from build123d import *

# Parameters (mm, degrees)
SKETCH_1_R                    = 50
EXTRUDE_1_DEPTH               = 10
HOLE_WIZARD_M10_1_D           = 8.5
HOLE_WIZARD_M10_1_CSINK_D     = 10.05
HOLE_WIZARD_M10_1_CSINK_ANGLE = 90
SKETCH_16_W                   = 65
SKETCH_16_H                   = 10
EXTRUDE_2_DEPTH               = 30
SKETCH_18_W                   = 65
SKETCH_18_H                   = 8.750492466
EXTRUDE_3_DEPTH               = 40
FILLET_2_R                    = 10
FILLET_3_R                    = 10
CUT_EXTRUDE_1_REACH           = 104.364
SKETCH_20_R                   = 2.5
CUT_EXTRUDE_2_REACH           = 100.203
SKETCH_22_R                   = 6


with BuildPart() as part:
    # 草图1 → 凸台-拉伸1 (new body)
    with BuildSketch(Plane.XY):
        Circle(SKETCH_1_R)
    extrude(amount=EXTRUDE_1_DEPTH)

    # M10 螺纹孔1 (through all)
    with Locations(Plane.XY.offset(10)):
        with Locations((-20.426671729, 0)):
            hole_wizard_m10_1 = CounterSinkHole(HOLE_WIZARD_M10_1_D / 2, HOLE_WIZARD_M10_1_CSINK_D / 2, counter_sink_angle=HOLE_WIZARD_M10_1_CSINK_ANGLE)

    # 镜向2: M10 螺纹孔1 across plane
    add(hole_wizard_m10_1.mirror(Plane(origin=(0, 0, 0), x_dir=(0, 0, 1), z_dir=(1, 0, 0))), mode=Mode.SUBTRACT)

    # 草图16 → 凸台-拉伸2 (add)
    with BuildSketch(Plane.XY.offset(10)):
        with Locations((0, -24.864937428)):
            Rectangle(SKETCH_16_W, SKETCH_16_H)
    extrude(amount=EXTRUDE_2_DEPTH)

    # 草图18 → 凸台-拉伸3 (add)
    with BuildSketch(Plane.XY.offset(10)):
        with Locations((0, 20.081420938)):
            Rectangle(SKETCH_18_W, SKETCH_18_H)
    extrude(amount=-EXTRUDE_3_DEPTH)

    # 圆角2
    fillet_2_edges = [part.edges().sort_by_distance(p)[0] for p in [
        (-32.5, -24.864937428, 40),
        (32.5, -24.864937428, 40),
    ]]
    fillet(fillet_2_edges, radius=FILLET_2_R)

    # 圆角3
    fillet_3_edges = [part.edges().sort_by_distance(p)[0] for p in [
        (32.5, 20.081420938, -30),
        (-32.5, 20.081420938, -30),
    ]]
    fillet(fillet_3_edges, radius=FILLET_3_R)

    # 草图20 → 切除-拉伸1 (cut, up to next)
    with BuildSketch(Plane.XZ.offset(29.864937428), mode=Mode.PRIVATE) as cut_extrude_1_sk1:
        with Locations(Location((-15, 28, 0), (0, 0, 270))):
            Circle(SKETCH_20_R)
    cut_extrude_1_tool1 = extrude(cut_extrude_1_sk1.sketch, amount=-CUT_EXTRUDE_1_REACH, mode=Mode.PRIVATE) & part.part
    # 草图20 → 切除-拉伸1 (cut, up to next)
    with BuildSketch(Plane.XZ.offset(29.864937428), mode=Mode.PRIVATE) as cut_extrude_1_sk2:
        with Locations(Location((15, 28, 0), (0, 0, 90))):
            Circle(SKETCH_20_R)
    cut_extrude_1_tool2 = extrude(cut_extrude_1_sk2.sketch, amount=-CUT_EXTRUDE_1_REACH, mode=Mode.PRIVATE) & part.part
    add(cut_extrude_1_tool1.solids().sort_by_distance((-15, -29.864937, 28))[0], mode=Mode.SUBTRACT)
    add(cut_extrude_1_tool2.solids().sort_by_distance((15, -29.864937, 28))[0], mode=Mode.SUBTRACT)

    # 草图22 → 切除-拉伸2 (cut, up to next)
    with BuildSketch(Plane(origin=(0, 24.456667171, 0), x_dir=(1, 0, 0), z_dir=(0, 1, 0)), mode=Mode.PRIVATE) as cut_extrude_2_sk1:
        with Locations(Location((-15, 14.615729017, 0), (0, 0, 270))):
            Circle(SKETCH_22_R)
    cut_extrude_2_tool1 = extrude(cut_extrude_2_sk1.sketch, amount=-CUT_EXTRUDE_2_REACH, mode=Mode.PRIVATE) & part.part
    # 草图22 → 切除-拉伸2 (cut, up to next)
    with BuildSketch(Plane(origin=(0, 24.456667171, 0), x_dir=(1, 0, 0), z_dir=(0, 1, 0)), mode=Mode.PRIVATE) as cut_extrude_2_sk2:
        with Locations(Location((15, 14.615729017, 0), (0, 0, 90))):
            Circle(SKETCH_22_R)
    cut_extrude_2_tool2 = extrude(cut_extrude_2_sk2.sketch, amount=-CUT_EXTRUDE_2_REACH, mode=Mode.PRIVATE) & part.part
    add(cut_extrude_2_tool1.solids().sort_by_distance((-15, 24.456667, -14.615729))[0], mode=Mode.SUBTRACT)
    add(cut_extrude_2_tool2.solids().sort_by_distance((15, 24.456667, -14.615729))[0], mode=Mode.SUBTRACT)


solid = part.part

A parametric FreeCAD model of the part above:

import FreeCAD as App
import Part
import Sketcher

V = App.Vector


def edges_at(feature, points):
    """Names of the edges that pass closest to the given points."""
    edges = feature.Shape.Edges
    near = lambda p: min(range(len(edges)), key=lambda i: edges[i].distToShape(Part.Vertex(*p))[0])
    return sorted({f"Edge{near(p) + 1}" for p in points})


def add_polygon(sketch, points):
    """Adds a closed chain of lines whose ends are joined by coincident constraints."""
    first, n = sketch.GeometryCount, len(points)
    for a, b in zip(points, points[1:] + points[:1]):
        sketch.addGeometry(Part.LineSegment(App.Vector(*a, 0), App.Vector(*b, 0)), False)
    for i in range(n):
        sketch.addConstraint(Sketcher.Constraint("Coincident", first + i, 2, first + (i + 1) % n, 1))

doc = App.newDocument("Part")
body = doc.addObject("PartDesign::Body", "Body")

sketch1 = doc.addObject("Sketcher::SketchObject", "Sketch")
body.addObject(sketch1)
sketch1.AttachmentSupport = (doc.XY_Plane, [""])
sketch1.MapMode = "FlatFace"
sketch1.addGeometry(Part.Circle(V(0, 0, 0), V(0, 0, 1), 50), False)
sketch1.addConstraint([
    Sketcher.Constraint("Coincident", 0, 3, -1, 1),
    Sketcher.Constraint("Diameter", 0, 100.0),
])
pad1 = doc.addObject("PartDesign::Pad", "Pad")
body.addObject(pad1)
pad1.Profile = sketch1
pad1.Length = 10

sketch2 = doc.addObject("Sketcher::SketchObject", "Sketch001")
body.addObject(sketch2)
sketch2.AttachmentSupport = (doc.XY_Plane, [""])
sketch2.MapMode = "FlatFace"
sketch2.AttachmentOffset = App.Placement(V(0, 0, 10), App.Rotation())
sketch2.addGeometry(Part.Circle(V(-20.426672, 0, 0), V(0, 0, 1), 4.25), False)
sketch2.addConstraint([
    Sketcher.Constraint("PointOnObject", 0, 3, -1),
    Sketcher.Constraint("Diameter", 0, 8.5),
    Sketcher.Constraint("DistanceX", 0, 3, -1, 1, 20.426672),
])
doc.recompute()
hole = doc.addObject("PartDesign::Hole", "Hole")
body.addObject(hole)
hole.Profile = sketch2
hole.ThreadType = "None"
hole.Diameter = 8.5
hole.DepthType = "ThroughAll"
hole.HoleCutType = "Countersink"
hole.HoleCutDiameter = 10.05
hole.HoleCutCountersinkAngle = 90
doc.recompute()

mirrored = doc.addObject("PartDesign::Mirrored", "Mirrored")
body.addObject(mirrored)
mirrored.Originals = [hole]
mirrored.MirrorPlane = (doc.YZ_Plane, [""])
body.Tip = mirrored

sketch3 = doc.addObject("Sketcher::SketchObject", "Sketch002")
body.addObject(sketch3)
sketch3.AttachmentSupport = (doc.XY_Plane, [""])
sketch3.MapMode = "FlatFace"
sketch3.AttachmentOffset = App.Placement(V(0, 0, 10), App.Rotation())
add_polygon(sketch3, [(-32.5, -19.864937), (-32.5, -29.864937), (32.5, -29.864937), (32.5, -19.864937)])
sketch3.addConstraint([
    Sketcher.Constraint("Vertical", 0),
    Sketcher.Constraint("Horizontal", 1),
    Sketcher.Constraint("Vertical", 2),
    Sketcher.Constraint("Horizontal", 3),
    Sketcher.Constraint("DistanceX", 1, 1, 1, 2, 65.0),
    Sketcher.Constraint("DistanceY", 0, 2, 0, 1, 10.0),
    Sketcher.Constraint("DistanceX", 0, 2, -1, 1, 32.5),
    Sketcher.Constraint("DistanceY", 0, 2, -1, 1, 29.864937),
])
pad2 = doc.addObject("PartDesign::Pad", "Pad001")
body.addObject(pad2)
pad2.Profile = sketch3
pad2.Length = 30

sketch4 = doc.addObject("Sketcher::SketchObject", "Sketch003")
body.addObject(sketch4)
sketch4.AttachmentSupport = (doc.XY_Plane, [""])
sketch4.MapMode = "FlatFace"
sketch4.AttachmentOffset = App.Placement(V(0, 0, 10), App.Rotation())
add_polygon(sketch4, [(-32.5, 24.456667), (-32.5, 15.706175), (32.5, 15.706175), (32.5, 24.456667)])
sketch4.addConstraint([
    Sketcher.Constraint("Vertical", 0),
    Sketcher.Constraint("Horizontal", 1),
    Sketcher.Constraint("Vertical", 2),
    Sketcher.Constraint("Horizontal", 3),
    Sketcher.Constraint("DistanceX", 1, 1, 1, 2, 65.0),
    Sketcher.Constraint("DistanceX", 0, 2, -1, 1, 32.5),
    Sketcher.Constraint("DistanceY", 0, 2, 0, 1, 8.750492),
    Sketcher.Constraint("DistanceY", -1, 1, 0, 2, 15.706175),
])
pad3 = doc.addObject("PartDesign::Pad", "Pad002")
body.addObject(pad3)
pad3.Profile = sketch4
pad3.Length = 40
pad3.Reversed = True
doc.recompute()

fillet = doc.addObject("PartDesign::Fillet", "Fillet")
body.addObject(fillet)
fillet.Base = (pad3, edges_at(pad3, [(-32.5, -24.865, 40), (32.5, -24.865, 40)]))
fillet.Radius = 10
doc.recompute()

fillet2 = doc.addObject("PartDesign::Fillet", "Fillet001")
body.addObject(fillet2)
fillet2.Base = (fillet, edges_at(fillet, [(32.5, 20.081, -30), (-32.5, 20.081, -30)]))
fillet2.Radius = 10

sketch5 = doc.addObject("Sketcher::SketchObject", "Sketch004")
body.addObject(sketch5)
sketch5.AttachmentSupport = (doc.XZ_Plane, [""])
sketch5.MapMode = "FlatFace"
sketch5.AttachmentOffset = App.Placement(V(0, 0, 29.864937), App.Rotation())
sketch5.addGeometry(Part.Circle(V(-15, 28, 0), V(0, 0, 1), 2.5), False)
sketch5.addConstraint([
    Sketcher.Constraint("Diameter", 0, 5.0),
    Sketcher.Constraint("DistanceX", 0, 3, -1, 1, 15.0),
    Sketcher.Constraint("DistanceY", -1, 1, 0, 3, 28.0),
])
pocket1 = doc.addObject("PartDesign::Pocket", "Pocket")
body.addObject(pocket1)
pocket1.Profile = sketch5
pocket1.Type = "UpToFirst"

sketch6 = doc.addObject("Sketcher::SketchObject", "Sketch005")
body.addObject(sketch6)
sketch6.AttachmentSupport = (doc.XZ_Plane, [""])
sketch6.MapMode = "FlatFace"
sketch6.AttachmentOffset = App.Placement(V(0, 0, 29.864937), App.Rotation())
sketch6.addGeometry(Part.Circle(V(15, 28, 0), V(0, 0, 1), 2.5), False)
sketch6.addConstraint([
    Sketcher.Constraint("Diameter", 0, 5.0),
    Sketcher.Constraint("DistanceX", -1, 1, 0, 3, 15.0),
    Sketcher.Constraint("DistanceY", -1, 1, 0, 3, 28.0),
])
pocket2 = doc.addObject("PartDesign::Pocket", "Pocket001")
body.addObject(pocket2)
pocket2.Profile = sketch6
pocket2.Type = "UpToFirst"

sketch7 = doc.addObject("Sketcher::SketchObject", "Sketch006")
body.addObject(sketch7)
sketch7.AttachmentSupport = (doc.XZ_Plane, [""])
sketch7.MapMode = "FlatFace"
sketch7.AttachmentOffset = App.Placement(V(0, 0, -24.456667), App.Rotation())
sketch7.addGeometry(Part.Circle(V(-15, -14.615729, 0), V(0, 0, 1), 6), False)
sketch7.addConstraint([
    Sketcher.Constraint("Diameter", 0, 12.0),
    Sketcher.Constraint("DistanceX", 0, 3, -1, 1, 15.0),
    Sketcher.Constraint("DistanceY", 0, 3, -1, 1, 14.615729),
])
pocket3 = doc.addObject("PartDesign::Pocket", "Pocket002")
body.addObject(pocket3)
pocket3.Profile = sketch7
pocket3.Type = "UpToFirst"
pocket3.Reversed = True

sketch8 = doc.addObject("Sketcher::SketchObject", "Sketch007")
body.addObject(sketch8)
sketch8.AttachmentSupport = (doc.XZ_Plane, [""])
sketch8.MapMode = "FlatFace"
sketch8.AttachmentOffset = App.Placement(V(0, 0, -24.456667), App.Rotation())
sketch8.addGeometry(Part.Circle(V(15, -14.615729, 0), V(0, 0, 1), 6), False)
sketch8.addConstraint([
    Sketcher.Constraint("Diameter", 0, 12.0),
    Sketcher.Constraint("DistanceX", -1, 1, 0, 3, 15.0),
    Sketcher.Constraint("DistanceY", 0, 3, -1, 1, 14.615729),
])
pocket4 = doc.addObject("PartDesign::Pocket", "Pocket003")
body.addObject(pocket4)
pocket4.Profile = sketch8
pocket4.Type = "UpToFirst"
pocket4.Reversed = True

doc.recompute()
